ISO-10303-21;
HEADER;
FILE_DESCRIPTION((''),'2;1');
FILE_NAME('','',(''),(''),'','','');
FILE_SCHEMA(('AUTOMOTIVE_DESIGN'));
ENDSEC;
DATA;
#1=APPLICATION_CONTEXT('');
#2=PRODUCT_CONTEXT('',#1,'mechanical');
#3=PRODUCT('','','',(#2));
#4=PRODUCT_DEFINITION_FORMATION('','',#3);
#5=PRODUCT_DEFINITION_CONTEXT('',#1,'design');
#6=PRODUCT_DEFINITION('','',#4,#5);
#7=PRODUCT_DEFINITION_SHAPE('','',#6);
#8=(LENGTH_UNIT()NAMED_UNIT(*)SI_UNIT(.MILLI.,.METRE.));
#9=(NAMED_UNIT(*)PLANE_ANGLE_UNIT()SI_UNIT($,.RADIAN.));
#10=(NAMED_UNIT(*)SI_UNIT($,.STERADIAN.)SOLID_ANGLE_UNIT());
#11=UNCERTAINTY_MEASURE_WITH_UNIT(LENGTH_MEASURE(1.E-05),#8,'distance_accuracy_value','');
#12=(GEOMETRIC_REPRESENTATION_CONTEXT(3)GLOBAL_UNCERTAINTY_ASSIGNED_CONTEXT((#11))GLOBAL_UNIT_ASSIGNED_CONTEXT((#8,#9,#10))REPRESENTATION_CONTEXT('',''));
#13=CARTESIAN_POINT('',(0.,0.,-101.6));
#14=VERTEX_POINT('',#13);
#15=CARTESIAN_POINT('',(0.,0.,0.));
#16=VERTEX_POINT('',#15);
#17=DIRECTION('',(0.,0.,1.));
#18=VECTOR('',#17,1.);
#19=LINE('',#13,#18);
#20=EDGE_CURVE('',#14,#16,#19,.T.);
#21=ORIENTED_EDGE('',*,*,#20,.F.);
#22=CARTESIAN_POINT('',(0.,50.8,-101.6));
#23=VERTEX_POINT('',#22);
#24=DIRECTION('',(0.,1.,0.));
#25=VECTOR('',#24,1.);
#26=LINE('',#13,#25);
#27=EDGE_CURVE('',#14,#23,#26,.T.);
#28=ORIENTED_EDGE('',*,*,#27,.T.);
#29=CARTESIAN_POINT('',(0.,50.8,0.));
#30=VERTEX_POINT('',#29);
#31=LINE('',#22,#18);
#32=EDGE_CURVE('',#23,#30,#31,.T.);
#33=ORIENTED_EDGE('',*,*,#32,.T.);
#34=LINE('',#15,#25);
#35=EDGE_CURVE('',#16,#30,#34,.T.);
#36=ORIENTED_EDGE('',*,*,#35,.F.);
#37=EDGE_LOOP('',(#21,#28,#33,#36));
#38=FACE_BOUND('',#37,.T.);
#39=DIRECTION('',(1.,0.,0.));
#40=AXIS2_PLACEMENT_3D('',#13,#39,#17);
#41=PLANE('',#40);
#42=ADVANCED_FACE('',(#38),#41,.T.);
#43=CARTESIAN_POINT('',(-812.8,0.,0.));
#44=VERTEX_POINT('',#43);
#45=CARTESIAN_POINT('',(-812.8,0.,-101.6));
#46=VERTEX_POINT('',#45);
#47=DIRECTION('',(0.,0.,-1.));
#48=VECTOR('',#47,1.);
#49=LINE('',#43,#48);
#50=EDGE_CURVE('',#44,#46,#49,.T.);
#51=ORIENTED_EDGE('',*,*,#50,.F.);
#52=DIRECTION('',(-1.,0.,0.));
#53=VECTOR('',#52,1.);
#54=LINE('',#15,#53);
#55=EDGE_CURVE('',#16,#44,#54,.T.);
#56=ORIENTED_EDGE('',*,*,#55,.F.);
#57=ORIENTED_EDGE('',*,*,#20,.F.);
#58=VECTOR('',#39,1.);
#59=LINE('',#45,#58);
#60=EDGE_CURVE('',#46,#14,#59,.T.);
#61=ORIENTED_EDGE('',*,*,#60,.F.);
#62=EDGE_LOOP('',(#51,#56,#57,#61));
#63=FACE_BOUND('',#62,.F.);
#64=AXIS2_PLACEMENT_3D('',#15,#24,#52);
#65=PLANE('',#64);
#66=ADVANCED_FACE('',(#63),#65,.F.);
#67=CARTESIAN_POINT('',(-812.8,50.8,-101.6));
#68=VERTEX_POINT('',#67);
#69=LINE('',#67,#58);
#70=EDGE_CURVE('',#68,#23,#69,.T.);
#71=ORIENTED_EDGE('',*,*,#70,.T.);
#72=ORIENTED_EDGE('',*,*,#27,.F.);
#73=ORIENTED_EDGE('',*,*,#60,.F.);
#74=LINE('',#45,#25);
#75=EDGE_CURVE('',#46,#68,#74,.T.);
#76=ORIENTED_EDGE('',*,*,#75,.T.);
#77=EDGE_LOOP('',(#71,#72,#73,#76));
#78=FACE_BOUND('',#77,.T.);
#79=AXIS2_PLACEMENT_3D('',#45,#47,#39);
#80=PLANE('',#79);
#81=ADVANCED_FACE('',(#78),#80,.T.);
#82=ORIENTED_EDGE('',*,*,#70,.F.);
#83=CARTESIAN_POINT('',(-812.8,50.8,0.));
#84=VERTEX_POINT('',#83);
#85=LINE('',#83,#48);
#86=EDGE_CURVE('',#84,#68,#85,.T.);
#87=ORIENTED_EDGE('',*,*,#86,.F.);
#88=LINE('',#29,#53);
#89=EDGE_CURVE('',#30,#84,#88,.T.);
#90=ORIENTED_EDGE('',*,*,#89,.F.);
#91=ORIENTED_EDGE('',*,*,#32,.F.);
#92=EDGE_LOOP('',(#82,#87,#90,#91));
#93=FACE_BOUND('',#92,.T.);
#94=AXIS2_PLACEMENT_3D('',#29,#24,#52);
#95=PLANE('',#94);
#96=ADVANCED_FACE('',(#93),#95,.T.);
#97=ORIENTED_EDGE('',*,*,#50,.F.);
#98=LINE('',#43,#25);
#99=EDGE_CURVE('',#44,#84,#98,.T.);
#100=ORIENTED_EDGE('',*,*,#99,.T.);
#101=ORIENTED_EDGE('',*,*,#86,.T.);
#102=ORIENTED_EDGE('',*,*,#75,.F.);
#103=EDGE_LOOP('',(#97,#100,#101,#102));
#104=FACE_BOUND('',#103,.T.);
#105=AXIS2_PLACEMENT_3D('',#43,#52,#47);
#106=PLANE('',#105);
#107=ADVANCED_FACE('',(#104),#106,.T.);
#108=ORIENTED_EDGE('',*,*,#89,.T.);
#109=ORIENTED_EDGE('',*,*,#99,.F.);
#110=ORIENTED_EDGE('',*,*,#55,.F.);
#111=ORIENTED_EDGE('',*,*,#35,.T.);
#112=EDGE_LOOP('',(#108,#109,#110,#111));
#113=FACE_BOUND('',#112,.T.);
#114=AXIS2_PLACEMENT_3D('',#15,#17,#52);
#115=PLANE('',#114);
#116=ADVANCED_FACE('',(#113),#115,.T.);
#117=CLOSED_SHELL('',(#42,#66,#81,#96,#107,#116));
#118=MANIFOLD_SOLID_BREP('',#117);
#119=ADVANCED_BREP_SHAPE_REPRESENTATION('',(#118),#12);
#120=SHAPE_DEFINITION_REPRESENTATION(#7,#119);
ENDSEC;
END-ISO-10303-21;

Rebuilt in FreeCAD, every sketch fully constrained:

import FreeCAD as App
import Part
import Sketcher

V = App.Vector
Q = App.Units.Quantity

doc = App.newDocument("Part")
body = doc.addObject("PartDesign::Body", "Body")

sketch1 = body.newObject("Sketcher::SketchObject", "Sketch")
sketch1.AttachmentSupport = (doc.getObject("XZ_Plane"), [""])
sketch1.MapMode = "FlatFace"
sketch1.addGeometry([
    Part.LineSegment(V(-812.8, 0, 0), V(0, 0, 0)),
    Part.LineSegment(V(0, 0, 0), V(0, -101.6, 0)),
    Part.LineSegment(V(0, -101.6, 0), V(-812.8, -101.6, 0)),
    Part.LineSegment(V(-812.8, -101.6, 0), V(-812.8, 0, 0)),
], False)
sketch1.addConstraint([
    Sketcher.Constraint("Coincident", 0, 2, 1, 1),
    Sketcher.Constraint("Coincident", 1, 2, 2, 1),
    Sketcher.Constraint("Coincident", 2, 2, 3, 1),
    Sketcher.Constraint("Coincident", 3, 2, 0, 1),
    Sketcher.Constraint("Horizontal", 0),
    Sketcher.Constraint("Vertical", 1),
    Sketcher.Constraint("Horizontal", 2),
    Sketcher.Constraint("Vertical", 3),
    Sketcher.Constraint("Coincident", 0, 2, -1, 1),
    Sketcher.Constraint("DistanceX", 0, 1, 0, 2, Q("32 in")),
    Sketcher.Constraint("DistanceY", 1, 2, 1, 1, Q("4 in")),
])
pad1 = body.newObject("PartDesign::Pad", "Pad")
pad1.Profile = sketch1
pad1.Length = Q("2 in")
pad1.Reversed = True

doc.recompute()
